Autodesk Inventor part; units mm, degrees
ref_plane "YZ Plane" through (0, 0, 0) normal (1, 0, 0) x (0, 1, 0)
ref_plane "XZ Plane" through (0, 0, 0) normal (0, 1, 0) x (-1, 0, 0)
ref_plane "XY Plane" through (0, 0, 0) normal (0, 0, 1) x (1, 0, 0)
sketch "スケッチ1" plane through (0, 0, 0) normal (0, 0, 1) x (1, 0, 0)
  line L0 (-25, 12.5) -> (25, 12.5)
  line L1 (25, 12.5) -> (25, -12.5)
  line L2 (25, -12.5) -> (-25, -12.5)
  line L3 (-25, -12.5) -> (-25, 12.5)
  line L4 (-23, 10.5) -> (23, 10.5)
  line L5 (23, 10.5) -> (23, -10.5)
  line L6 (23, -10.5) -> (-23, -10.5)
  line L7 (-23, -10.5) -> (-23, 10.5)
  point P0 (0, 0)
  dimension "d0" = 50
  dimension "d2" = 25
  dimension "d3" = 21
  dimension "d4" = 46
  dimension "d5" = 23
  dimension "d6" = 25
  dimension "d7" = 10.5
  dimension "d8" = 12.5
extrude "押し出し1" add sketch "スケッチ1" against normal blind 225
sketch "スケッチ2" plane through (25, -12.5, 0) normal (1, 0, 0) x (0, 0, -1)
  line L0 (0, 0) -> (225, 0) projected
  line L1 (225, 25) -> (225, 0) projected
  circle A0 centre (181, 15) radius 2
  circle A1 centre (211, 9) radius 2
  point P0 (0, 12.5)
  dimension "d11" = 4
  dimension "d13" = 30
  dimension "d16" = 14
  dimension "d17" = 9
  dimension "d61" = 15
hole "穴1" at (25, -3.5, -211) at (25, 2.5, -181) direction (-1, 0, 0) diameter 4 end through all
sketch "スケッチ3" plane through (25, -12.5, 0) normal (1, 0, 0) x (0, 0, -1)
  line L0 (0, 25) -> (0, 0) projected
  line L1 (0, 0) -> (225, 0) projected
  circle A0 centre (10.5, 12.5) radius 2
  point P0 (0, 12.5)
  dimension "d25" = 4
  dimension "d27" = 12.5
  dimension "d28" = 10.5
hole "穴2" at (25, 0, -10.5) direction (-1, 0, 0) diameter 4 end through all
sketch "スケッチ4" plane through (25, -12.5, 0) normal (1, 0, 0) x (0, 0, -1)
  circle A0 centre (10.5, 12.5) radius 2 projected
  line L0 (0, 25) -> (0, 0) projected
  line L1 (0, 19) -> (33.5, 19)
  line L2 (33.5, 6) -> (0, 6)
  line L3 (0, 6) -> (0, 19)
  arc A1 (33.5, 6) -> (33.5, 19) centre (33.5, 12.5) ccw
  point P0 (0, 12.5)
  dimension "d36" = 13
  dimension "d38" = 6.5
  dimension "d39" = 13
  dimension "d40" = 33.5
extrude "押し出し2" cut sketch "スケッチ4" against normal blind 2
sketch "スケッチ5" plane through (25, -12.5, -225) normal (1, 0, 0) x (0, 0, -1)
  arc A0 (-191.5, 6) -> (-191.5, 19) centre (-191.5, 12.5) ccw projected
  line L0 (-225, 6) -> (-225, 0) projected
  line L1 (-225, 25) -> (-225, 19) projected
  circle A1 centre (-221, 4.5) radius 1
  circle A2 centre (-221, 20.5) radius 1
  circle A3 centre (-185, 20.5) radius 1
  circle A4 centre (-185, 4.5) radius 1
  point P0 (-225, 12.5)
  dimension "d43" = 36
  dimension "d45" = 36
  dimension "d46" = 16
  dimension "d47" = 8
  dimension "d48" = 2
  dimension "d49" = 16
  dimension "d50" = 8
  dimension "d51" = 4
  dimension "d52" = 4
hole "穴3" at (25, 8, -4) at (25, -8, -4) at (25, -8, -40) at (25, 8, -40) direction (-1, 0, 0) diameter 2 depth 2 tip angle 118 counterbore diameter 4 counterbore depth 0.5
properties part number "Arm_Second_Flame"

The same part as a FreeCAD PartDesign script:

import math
import FreeCAD as App
import Part
import Sketcher
from FreeCAD import Vector


def add_polygon(sketch, points):
    """Adds a closed chain of lines whose ends are joined by coincident constraints."""
    first, n = sketch.GeometryCount, len(points)
    for a, b in zip(points, points[1:] + points[:1]):
        sketch.addGeometry(Part.LineSegment(App.Vector(*a, 0), App.Vector(*b, 0)), False)
    for i in range(n):
        sketch.addConstraint(Sketcher.Constraint("Coincident", first + i, 2, first + (i + 1) % n, 1))

doc = App.newDocument("Part")
body = doc.addObject("PartDesign::Body", "Body")

sketch1 = body.newObject("Sketcher::SketchObject", "Sketch")
sketch1.AttachmentSupport = (doc.getObject("XY_Plane"), [""])
sketch1.MapMode = "FlatFace"
add_polygon(sketch1, [(25, 12), (-25, 12), (-25, -12), (25, -12)])
add_polygon(sketch1, [(-23, -10), (-23, 10), (23, 10), (23, -10)])
sketch1.addConstraint([
    Sketcher.Constraint("Horizontal", 0),
    Sketcher.Constraint("Vertical", 1),
    Sketcher.Constraint("Horizontal", 2),
    Sketcher.Constraint("Vertical", 3),
    Sketcher.Constraint("Vertical", 4),
    Sketcher.Constraint("Horizontal", 5),
    Sketcher.Constraint("Vertical", 6),
    Sketcher.Constraint("Horizontal", 7),
    Sketcher.Constraint("Symmetric", 0, 2, 2, 2, -1, 1),
    Sketcher.Constraint("Symmetric", 4, 2, 6, 2, -1, 1),
    Sketcher.Constraint("DistanceX", 0, 2, 0, 1, 50.0),
    Sketcher.Constraint("DistanceX", 5, 1, 5, 2, 46.0),
    Sketcher.Constraint("DistanceY", 1, 2, 1, 1, 25.0),
    Sketcher.Constraint("DistanceY", 4, 1, 4, 2, 21.0),
])
pad1 = body.newObject("PartDesign::Pad", "Pad")
pad1.Profile = sketch1
pad1.Length = 225
pad1.Reversed = True

sketch2 = body.newObject("Sketcher::SketchObject", "Sketch001")
sketch2.AttachmentSupport = (doc.getObject("YZ_Plane"), [""])
sketch2.MapMode = "FlatFace"
sketch2.AttachmentOffset = App.Placement(Vector(0, 0, 25), App.Rotation())
sketch2.addGeometry([
    Part.Circle(Vector(-3.5, -211, 0), Vector(0, 0, 1), 2),
    Part.Circle(Vector(2.5, -181, 0), Vector(0, 0, 1), 2),
], False)
sketch2.addConstraint([
    Sketcher.Constraint("Equal", 0, 1),
    Sketcher.Constraint("Diameter", 0, 4.0),
    Sketcher.Constraint("DistanceY", 0, 3, -1, 1, 211.0),
    Sketcher.Constraint("DistanceY", 1, 3, -1, 1, 181.0),
    Sketcher.Constraint("DistanceX", 0, 3, 1, 3, 6.0),
    Sketcher.Constraint("DistanceX", 0, 3, -1, 1, 3.5),
])
doc.recompute()
hole = body.newObject("PartDesign::Hole", "Hole")
hole.Profile = sketch2
hole.ThreadType = "None"
hole.Diameter = 4
hole.DepthType = "ThroughAll"

sketch3 = body.newObject("Sketcher::SketchObject", "Sketch002")
sketch3.AttachmentSupport = (doc.getObject("YZ_Plane"), [""])
sketch3.MapMode = "FlatFace"
sketch3.AttachmentOffset = App.Placement(Vector(0, 0, 25), App.Rotation())
sketch3.addGeometry(Part.Circle(Vector(0, -10.5, 0), Vector(0, 0, 1), 2), False)
sketch3.addConstraint([
    Sketcher.Constraint("PointOnObject", 0, 3, -2),
    Sketcher.Constraint("Diameter", 0, 4.0),
    Sketcher.Constraint("DistanceY", 0, 3, -1, 1, 10.5),
])
doc.recompute()
hole2 = body.newObject("PartDesign::Hole", "Hole001")
hole2.Profile = sketch3
hole2.ThreadType = "None"
hole2.Diameter = 4
hole2.DepthType = "ThroughAll"

sketch4 = body.newObject("Sketcher::SketchObject", "Sketch003")
sketch4.AttachmentSupport = (doc.getObject("YZ_Plane"), [""])
sketch4.MapMode = "FlatFace"
sketch4.AttachmentOffset = App.Placement(Vector(0, 0, 25), App.Rotation())
sketch4.addGeometry([
    Part.LineSegment(Vector(6.5, -33.5, 0), Vector(6.5, 0, 0)),
    Part.LineSegment(Vector(6.5, 0, 0), Vector(-6.5, 0, 0)),
    Part.LineSegment(Vector(-6.5, 0, 0), Vector(-6.5, -33.5, 0)),
    Part.ArcOfCircle(Part.Circle(Vector(0, -33.5, 0), Vector(0, 0, 1), 6.5), math.radians(180), math.radians(360)),
    Part.Circle(Vector(0, -10.5, 0), Vector(0, 0, 1), 2),
], False)
sketch4.addConstraint([
    Sketcher.Constraint("Coincident", 0, 2, 1, 1),
    Sketcher.Constraint("Coincident", 1, 2, 2, 1),
    Sketcher.Constraint("Tangent", 2, 2, 3, 1),
    Sketcher.Constraint("Tangent", 3, 2, 0, 1),
    Sketcher.Constraint("Vertical", 0),
    Sketcher.Constraint("Horizontal", 1),
    Sketcher.Constraint("Vertical", 2),
    Sketcher.Constraint("Symmetric", 0, 2, 1, 2, -1, 1),
    Sketcher.Constraint("PointOnObject", 4, 3, -2),
    Sketcher.Constraint("Radius", 3, 6.5),
    Sketcher.Constraint("Diameter", 4, 4.0),
    Sketcher.Constraint("DistanceY", 0, 1, 0, 2, 33.5),
    Sketcher.Constraint("DistanceY", 3, 3, 4, 3, 23.0),
])
pocket1 = body.newObject("PartDesign::Pocket", "Pocket")
pocket1.Profile = sketch4
pocket1.Length = 2

sketch5 = body.newObject("Sketcher::SketchObject", "Sketch004")
sketch5.AttachmentSupport = (doc.getObject("YZ_Plane"), [""])
sketch5.MapMode = "FlatFace"
sketch5.AttachmentOffset = App.Placement(Vector(0, 0, 25), App.Rotation())
sketch5.addGeometry([
    Part.Circle(Vector(8, -4, 0), Vector(0, 0, 1), 1),
    Part.Circle(Vector(-8, -4, 0), Vector(0, 0, 1), 1),
    Part.Circle(Vector(-8, -40, 0), Vector(0, 0, 1), 1),
    Part.Circle(Vector(8, -40, 0), Vector(0, 0, 1), 1),
], False)
sketch5.addConstraint([
    Sketcher.Constraint("Equal", 0, 1),
    Sketcher.Constraint("Equal", 1, 2),
    Sketcher.Constraint("Equal", 2, 3),
    Sketcher.Constraint("Symmetric", 0, 3, 1, 3, -2),
    Sketcher.Constraint("Symmetric", 2, 3, 3, 3, -2),
    Sketcher.Constraint("Vertical", 1, 3, 2, 3),
    Sketcher.Constraint("Diameter", 0, 2.0),
    Sketcher.Constraint("DistanceX", -1, 1, 0, 3, 8.0),
    Sketcher.Constraint("DistanceY", 0, 3, -1, 1, 4.0),
    Sketcher.Constraint("DistanceY", 2, 3, -1, 1, 40.0),
])
doc.recompute()
hole3 = body.newObject("PartDesign::Hole", "Hole002")
hole3.Profile = sketch5
hole3.ThreadType = "None"
hole3.Diameter = 2
hole3.DepthType = "Dimension"
hole3.Depth = 2
hole3.DrillPoint = "Angled"
hole3.DrillPointAngle = 118
hole3.HoleCutType = "Counterbore"
hole3.HoleCutDiameter = 4
hole3.HoleCutDepth = 0.5

doc.recompute()
